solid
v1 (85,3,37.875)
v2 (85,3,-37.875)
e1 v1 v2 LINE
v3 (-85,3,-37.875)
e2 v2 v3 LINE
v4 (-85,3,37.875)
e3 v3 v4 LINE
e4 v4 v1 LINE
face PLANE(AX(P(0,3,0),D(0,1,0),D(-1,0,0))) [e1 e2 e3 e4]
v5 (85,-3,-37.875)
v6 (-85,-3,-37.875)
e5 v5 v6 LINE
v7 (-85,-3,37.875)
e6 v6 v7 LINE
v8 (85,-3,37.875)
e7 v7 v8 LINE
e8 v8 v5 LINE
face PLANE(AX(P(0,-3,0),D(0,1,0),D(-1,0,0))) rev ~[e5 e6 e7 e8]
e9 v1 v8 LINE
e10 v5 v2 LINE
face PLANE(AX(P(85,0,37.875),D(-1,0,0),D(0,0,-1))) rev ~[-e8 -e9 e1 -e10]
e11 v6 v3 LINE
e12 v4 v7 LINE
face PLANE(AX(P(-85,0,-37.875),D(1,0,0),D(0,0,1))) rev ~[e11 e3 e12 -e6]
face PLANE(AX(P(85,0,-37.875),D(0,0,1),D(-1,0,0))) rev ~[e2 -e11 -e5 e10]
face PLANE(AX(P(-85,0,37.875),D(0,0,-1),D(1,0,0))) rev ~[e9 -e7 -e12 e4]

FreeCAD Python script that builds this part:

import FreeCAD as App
import Part
import Sketcher
Q = App.Units.Quantity


def add_polygon(sketch, points):
    """Adds a closed chain of lines whose ends are joined by coincident constraints."""
    first, n = sketch.GeometryCount, len(points)
    for a, b in zip(points, points[1:] + points[:1]):
        sketch.addGeometry(Part.LineSegment(App.Vector(*a, 0), App.Vector(*b, 0)), False)
    for i in range(n):
        sketch.addConstraint(Sketcher.Constraint("Coincident", first + i, 2, first + (i + 1) % n, 1))

doc = App.newDocument("Part")
body = doc.addObject("PartDesign::Body", "Body")

# Sketch on XZ plane
sketch1 = body.newObject("Sketcher::SketchObject", "Sketch")
sketch1.AttachmentSupport = (doc.getObject("XZ_Plane"), [""])
sketch1.MapMode = "FlatFace"
add_polygon(sketch1, [(85, 37.875), (85, -37.875), (-85, -37.875), (-85, 37.875)])  # lines 0-3
sketch1.addConstraint([
    Sketcher.Constraint("Vertical", 0),
    Sketcher.Constraint("Horizontal", 1),
    Sketcher.Constraint("Vertical", 2),
    Sketcher.Constraint("Horizontal", 3),
    Sketcher.Constraint("Symmetric", 0, 2, 2, 2, -1, 1),
    Sketcher.Constraint("DistanceX", 1, 2, 1, 1, Q("170 mm")),
    Sketcher.Constraint("DistanceY", 0, 2, 0, 1, Q("75.75 mm")),
])
pad1 = body.newObject("PartDesign::Pad", "Pad")
pad1.Profile = sketch1
pad1.Length = 6
pad1.Midplane = True

doc.recompute()
